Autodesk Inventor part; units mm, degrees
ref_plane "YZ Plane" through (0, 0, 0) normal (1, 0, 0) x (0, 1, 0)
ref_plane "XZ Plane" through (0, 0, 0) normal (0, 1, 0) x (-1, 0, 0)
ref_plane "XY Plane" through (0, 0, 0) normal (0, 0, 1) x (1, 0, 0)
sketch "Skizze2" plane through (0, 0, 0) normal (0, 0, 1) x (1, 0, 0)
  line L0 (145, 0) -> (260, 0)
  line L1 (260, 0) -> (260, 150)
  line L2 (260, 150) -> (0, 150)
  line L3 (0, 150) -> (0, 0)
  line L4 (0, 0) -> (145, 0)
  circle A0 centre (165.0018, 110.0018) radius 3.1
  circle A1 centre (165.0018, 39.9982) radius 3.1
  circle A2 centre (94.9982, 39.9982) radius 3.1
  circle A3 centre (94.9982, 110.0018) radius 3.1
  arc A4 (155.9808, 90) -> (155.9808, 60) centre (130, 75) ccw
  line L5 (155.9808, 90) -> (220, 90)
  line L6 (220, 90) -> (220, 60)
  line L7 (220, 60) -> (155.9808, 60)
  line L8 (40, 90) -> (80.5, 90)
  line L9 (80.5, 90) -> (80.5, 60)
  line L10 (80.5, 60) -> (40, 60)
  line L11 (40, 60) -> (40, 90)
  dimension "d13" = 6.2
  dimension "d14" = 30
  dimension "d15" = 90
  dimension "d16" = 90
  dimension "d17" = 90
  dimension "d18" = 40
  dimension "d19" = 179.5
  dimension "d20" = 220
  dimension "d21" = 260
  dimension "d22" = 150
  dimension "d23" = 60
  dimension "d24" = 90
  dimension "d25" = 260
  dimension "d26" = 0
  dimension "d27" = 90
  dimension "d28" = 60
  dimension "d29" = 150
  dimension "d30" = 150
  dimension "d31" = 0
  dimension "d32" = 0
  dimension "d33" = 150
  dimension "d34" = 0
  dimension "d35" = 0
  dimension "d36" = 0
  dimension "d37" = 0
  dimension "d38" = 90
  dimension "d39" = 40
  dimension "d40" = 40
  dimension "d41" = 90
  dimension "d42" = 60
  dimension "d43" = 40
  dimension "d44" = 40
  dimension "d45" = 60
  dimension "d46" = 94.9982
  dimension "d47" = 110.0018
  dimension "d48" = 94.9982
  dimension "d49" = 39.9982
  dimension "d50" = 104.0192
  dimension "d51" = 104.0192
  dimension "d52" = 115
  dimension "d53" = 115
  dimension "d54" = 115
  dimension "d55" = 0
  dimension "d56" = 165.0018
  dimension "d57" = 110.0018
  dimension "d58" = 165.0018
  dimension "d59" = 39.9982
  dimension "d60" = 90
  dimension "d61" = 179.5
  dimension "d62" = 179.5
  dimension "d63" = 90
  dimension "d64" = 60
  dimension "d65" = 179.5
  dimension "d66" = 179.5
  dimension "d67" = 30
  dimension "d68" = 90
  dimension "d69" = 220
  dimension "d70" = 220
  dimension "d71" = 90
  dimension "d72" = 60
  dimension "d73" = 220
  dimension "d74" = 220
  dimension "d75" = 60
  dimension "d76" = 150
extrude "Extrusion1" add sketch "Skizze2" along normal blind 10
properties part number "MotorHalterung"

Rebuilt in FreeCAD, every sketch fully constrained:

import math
import FreeCAD as App
import Part
import Sketcher
from FreeCAD import Vector
Q = App.Units.Quantity

doc = App.newDocument("Part")
body = doc.addObject("PartDesign::Body", "Body")

sketch1 = body.newObject("Sketcher::SketchObject", "Sketch")
sketch1.AttachmentSupport = (doc.getObject("XY_Plane"), [""])
sketch1.MapMode = "FlatFace"
sketch1.addGeometry([
    Part.LineSegment(Vector(0, 0, 0), Vector(260, 0, 0)),
    Part.LineSegment(Vector(260, 0, 0), Vector(260, 150, 0)),
    Part.LineSegment(Vector(260, 150, 0), Vector(0, 150, 0)),
    Part.LineSegment(Vector(0, 150, 0), Vector(0, 0, 0)),
    Part.Circle(Vector(94.9982, 39.9982, 0), Vector(0, 0, 1), 3.1),
    Part.Circle(Vector(165.0018, 39.9982, 0), Vector(0, 0, 1), 3.1),
    Part.LineSegment(Vector(40, 60, 0), Vector(40, 90, 0)),
    Part.LineSegment(Vector(40, 90, 0), Vector(80.5, 90, 0)),
    Part.LineSegment(Vector(80.5, 90, 0), Vector(80.5, 60, 0)),
    Part.LineSegment(Vector(80.5, 60, 0), Vector(40, 60, 0)),
    Part.Circle(Vector(94.9982, 110.0018, 0), Vector(0, 0, 1), 3.1),
    Part.ArcOfCircle(Part.Circle(Vector(130, 75, 0), Vector(0, 0, 1), 30.000033), math.radians(29.999964), math.radians(330.000036)),
    Part.LineSegment(Vector(155.9808, 90, 0), Vector(220, 90, 0)),
    Part.LineSegment(Vector(220, 90, 0), Vector(220, 60, 0)),
    Part.LineSegment(Vector(220, 60, 0), Vector(155.9808, 60, 0)),
    Part.Circle(Vector(165.0018, 110.0018, 0), Vector(0, 0, 1), 3.1),
], False)
sketch1.addConstraint([
    Sketcher.Constraint("Coincident", 0, 2, 1, 1),
    Sketcher.Constraint("Coincident", 1, 2, 2, 1),
    Sketcher.Constraint("Coincident", 2, 2, 3, 1),
    Sketcher.Constraint("Coincident", 3, 2, 0, 1),
    Sketcher.Constraint("Coincident", 6, 2, 7, 1),
    Sketcher.Constraint("Coincident", 7, 2, 8, 1),
    Sketcher.Constraint("Coincident", 8, 2, 9, 1),
    Sketcher.Constraint("Coincident", 9, 2, 6, 1),
    Sketcher.Constraint("Coincident", 11, 1, 12, 1),
    Sketcher.Constraint("Coincident", 12, 2, 13, 1),
    Sketcher.Constraint("Coincident", 13, 2, 14, 1),
    Sketcher.Constraint("Coincident", 14, 2, 11, 2),
    Sketcher.Constraint("Horizontal", 0),
    Sketcher.Constraint("Vertical", 1),
    Sketcher.Constraint("Horizontal", 2),
    Sketcher.Constraint("Vertical", 3),
    Sketcher.Constraint("Vertical", 6),
    Sketcher.Constraint("Horizontal", 7),
    Sketcher.Constraint("Vertical", 8),
    Sketcher.Constraint("Horizontal", 9),
    Sketcher.Constraint("Horizontal", 12),
    Sketcher.Constraint("Vertical", 13),
    Sketcher.Constraint("Horizontal", 14),
    Sketcher.Constraint("Coincident", 3, 2, -1, 1),
    Sketcher.Constraint("Equal", 4, 5),
    Sketcher.Constraint("Equal", 5, 10),
    Sketcher.Constraint("Equal", 10, 15),
    Sketcher.Constraint("Horizontal", 4, 3, 5, 3),
    Sketcher.Constraint("Horizontal", 10, 3, 15, 3),
    Sketcher.Constraint("Horizontal", 7, 2, 11, 1),
    Sketcher.Constraint("Horizontal", 9, 2, 13, 2),
    Sketcher.Constraint("Vertical", 4, 3, 10, 3),
    Sketcher.Constraint("Vertical", 5, 3, 15, 3),
    Sketcher.Constraint("Vertical", 11, 1, 14, 2),
    Sketcher.Constraint("Radius", 11, Q("30 mm")),
    Sketcher.Constraint("Diameter", 4, Q("6.2 mm")),
    Sketcher.Constraint("DistanceX", 0, 1, 0, 2, Q("260 mm")),
    Sketcher.Constraint("DistanceY", 1, 1, 1, 2, Q("150 mm")),
    Sketcher.Constraint("DistanceY", 6, 1, 6, 2, Q("30 mm")),
    Sketcher.Constraint("DistanceX", -1, 1, 6, 2, Q("40 mm")),
    Sketcher.Constraint("DistanceY", -1, 1, 6, 2, Q("90 mm")),
    Sketcher.Constraint("DistanceX", -1, 1, 12, 2, Q("220 mm")),
    Sketcher.Constraint("DistanceX", 6, 2, 11, 3, Q("90 mm")),
    Sketcher.Constraint("DistanceX", 7, 1, 7, 2, Q("40.5 mm")),
    Sketcher.Constraint("DistanceX", -1, 1, 4, 3, Q("94.9982 mm")),
    Sketcher.Constraint("DistanceY", -1, 1, 4, 3, Q("39.9982 mm")),
    Sketcher.Constraint("DistanceX", -1, 1, 5, 3, Q("165.0018 mm")),
    Sketcher.Constraint("DistanceY", -1, 1, 10, 3, Q("110.0018 mm")),
])
pad1 = body.newObject("PartDesign::Pad", "Pad")
pad1.Profile = sketch1
pad1.Length = 10

doc.recompute()
